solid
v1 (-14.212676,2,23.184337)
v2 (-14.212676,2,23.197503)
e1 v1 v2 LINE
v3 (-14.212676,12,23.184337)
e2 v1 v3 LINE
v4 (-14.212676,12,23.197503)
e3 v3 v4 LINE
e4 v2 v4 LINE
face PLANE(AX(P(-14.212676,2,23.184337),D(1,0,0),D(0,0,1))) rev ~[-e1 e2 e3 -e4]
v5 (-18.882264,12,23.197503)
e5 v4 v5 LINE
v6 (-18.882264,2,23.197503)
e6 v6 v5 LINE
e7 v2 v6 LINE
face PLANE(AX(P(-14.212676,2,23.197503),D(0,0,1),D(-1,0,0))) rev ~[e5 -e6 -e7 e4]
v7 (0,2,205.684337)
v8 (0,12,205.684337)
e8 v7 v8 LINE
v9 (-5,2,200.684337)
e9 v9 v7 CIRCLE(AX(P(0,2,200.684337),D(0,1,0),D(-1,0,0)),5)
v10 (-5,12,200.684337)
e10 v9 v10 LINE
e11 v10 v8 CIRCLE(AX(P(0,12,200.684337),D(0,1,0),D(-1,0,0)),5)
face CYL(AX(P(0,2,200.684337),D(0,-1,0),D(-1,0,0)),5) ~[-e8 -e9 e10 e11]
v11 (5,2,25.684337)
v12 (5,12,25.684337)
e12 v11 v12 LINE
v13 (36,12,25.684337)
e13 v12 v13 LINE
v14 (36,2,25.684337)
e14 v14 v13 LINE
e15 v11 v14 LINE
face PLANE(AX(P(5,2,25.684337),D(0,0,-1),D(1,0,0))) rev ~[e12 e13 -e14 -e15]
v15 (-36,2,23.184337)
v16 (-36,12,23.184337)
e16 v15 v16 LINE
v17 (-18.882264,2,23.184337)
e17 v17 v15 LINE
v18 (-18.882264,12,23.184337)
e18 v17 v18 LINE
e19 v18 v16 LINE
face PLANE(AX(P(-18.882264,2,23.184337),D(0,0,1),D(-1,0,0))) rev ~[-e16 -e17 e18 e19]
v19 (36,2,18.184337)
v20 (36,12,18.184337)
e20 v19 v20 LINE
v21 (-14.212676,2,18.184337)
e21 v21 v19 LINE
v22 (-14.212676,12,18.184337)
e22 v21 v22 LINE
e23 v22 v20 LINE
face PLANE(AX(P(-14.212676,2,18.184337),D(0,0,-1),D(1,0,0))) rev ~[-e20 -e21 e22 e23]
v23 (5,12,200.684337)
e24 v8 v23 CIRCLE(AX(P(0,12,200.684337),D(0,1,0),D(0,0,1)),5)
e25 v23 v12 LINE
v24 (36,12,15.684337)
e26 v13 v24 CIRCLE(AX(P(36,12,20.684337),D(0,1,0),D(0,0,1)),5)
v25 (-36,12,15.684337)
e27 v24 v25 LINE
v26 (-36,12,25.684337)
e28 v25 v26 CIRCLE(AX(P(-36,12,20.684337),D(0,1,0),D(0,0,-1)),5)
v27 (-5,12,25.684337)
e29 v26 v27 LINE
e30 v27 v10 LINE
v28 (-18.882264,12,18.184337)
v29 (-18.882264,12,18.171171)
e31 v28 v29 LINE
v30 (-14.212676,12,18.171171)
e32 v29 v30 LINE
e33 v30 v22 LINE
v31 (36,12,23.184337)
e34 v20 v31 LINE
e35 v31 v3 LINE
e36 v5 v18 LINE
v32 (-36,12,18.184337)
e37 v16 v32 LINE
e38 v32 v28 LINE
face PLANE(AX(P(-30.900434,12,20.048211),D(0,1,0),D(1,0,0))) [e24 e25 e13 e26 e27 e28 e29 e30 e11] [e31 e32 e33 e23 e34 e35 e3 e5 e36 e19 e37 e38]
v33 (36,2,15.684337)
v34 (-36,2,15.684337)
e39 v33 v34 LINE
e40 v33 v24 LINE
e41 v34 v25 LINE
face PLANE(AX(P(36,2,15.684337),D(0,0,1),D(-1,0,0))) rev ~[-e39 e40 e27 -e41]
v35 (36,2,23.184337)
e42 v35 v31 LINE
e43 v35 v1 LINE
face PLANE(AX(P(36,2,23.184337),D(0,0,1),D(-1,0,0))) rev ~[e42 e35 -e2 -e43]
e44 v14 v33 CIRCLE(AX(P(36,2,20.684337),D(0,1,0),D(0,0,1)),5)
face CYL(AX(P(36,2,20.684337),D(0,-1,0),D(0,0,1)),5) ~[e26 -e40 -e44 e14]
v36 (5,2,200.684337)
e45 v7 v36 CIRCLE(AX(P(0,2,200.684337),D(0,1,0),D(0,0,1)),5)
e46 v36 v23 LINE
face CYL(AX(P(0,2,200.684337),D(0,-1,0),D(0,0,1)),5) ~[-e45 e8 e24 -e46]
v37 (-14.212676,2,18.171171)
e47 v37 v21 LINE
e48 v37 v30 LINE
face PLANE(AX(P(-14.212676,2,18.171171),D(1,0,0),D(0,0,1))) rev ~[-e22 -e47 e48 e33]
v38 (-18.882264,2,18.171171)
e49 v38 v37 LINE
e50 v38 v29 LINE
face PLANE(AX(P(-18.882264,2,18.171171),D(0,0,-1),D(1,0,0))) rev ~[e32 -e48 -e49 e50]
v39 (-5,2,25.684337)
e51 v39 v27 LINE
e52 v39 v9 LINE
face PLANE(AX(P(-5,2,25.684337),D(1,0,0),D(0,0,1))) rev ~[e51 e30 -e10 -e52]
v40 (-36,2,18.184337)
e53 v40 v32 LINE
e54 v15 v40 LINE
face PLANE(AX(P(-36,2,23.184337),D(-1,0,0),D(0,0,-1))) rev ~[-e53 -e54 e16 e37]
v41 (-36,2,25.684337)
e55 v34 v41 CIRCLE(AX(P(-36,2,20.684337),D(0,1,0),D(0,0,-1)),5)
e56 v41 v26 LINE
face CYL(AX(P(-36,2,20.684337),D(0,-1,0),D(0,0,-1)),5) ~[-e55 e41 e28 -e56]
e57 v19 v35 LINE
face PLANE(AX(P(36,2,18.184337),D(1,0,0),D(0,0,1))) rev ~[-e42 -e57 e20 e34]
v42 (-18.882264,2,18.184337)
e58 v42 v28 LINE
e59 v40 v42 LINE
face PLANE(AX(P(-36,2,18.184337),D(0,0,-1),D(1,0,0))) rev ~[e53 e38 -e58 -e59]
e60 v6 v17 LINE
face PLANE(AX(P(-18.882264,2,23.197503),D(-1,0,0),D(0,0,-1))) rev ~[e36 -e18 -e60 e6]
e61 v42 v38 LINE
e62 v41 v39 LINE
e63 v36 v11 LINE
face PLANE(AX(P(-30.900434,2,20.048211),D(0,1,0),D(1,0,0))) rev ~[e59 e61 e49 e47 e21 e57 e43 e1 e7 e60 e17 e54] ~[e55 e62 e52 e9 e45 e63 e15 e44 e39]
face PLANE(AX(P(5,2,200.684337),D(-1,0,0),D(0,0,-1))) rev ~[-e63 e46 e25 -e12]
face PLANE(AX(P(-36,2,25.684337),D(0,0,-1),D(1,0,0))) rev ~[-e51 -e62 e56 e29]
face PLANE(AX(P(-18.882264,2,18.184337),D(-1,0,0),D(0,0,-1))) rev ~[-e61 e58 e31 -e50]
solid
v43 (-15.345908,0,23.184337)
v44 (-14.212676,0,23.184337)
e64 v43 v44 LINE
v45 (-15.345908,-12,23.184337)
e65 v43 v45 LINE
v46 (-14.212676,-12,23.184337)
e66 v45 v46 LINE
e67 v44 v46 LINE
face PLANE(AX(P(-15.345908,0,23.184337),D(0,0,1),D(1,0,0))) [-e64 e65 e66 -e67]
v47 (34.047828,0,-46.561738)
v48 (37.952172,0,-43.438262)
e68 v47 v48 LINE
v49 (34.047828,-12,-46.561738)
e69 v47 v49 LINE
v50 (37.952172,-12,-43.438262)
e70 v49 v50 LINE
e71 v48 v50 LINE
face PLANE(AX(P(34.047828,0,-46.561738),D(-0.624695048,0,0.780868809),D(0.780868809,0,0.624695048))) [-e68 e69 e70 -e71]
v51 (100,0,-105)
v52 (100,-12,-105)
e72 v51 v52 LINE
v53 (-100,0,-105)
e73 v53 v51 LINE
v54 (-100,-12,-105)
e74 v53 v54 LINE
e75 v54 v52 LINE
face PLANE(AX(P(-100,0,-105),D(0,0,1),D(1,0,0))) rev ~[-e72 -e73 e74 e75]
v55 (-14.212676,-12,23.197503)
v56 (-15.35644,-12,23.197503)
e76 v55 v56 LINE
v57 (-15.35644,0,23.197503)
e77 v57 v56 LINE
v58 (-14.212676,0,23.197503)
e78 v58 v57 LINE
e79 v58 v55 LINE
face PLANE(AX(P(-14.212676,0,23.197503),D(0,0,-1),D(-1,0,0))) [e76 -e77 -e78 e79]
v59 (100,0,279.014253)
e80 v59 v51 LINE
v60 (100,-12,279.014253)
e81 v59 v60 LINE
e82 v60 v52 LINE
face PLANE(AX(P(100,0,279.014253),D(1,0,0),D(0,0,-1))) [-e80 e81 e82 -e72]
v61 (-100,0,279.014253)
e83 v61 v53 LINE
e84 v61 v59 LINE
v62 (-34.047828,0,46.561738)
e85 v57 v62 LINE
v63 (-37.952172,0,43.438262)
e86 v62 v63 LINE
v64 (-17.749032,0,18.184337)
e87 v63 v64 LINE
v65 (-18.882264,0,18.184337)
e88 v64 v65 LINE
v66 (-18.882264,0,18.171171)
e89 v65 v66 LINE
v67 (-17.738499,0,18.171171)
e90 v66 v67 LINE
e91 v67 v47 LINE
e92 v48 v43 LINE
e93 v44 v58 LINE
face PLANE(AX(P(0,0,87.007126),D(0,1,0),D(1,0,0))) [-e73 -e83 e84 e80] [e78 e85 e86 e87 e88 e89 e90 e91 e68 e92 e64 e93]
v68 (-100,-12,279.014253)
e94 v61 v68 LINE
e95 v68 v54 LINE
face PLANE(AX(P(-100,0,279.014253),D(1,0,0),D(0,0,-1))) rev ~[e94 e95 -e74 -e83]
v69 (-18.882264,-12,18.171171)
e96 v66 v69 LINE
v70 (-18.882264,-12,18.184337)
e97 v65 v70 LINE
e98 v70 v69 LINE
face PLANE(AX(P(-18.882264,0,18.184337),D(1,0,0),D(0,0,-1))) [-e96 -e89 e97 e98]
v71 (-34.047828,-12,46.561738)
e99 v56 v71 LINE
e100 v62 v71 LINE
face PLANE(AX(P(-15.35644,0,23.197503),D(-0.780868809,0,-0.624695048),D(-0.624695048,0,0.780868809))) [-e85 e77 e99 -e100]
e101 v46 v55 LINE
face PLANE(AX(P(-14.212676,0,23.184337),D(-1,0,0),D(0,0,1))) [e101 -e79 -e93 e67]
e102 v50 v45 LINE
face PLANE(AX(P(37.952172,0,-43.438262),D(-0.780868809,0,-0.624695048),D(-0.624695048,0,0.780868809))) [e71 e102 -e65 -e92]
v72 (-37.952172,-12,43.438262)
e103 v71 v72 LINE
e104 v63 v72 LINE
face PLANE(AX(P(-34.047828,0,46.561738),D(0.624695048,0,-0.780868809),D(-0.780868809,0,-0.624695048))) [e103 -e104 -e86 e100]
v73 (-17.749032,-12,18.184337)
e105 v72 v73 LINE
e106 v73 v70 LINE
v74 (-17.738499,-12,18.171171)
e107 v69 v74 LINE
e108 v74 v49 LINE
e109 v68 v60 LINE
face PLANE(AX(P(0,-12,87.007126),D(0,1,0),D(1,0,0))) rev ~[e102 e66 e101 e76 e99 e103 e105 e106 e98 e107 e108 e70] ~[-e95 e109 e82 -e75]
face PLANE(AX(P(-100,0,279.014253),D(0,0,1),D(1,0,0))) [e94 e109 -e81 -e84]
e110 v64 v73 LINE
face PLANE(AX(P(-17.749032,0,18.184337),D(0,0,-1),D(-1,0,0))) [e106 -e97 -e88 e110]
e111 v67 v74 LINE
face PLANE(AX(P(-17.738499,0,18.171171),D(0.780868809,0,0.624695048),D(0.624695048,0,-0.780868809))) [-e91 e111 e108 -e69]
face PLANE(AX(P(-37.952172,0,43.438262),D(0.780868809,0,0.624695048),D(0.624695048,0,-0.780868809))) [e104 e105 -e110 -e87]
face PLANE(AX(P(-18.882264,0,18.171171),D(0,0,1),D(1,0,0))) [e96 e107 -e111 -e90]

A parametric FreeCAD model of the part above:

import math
import FreeCAD as App
import Part
import Sketcher


def add_polygon(sketch, points):
    """Adds a closed chain of lines whose ends are joined by coincident constraints."""
    first, n = sketch.GeometryCount, len(points)
    for a, b in zip(points, points[1:] + points[:1]):
        sketch.addGeometry(Part.LineSegment(App.Vector(*a, 0), App.Vector(*b, 0)), False)
    for i in range(n):
        sketch.addConstraint(Sketcher.Constraint("Coincident", first + i, 2, first + (i + 1) % n, 1))

doc = App.newDocument("Part")
body = doc.addObject("PartDesign::Body", "Body")

sketch1 = doc.addObject("Sketcher::SketchObject", "Sketch")
body.addObject(sketch1)
sketch1.AttachmentSupport = (doc.XZ_Plane, [""])
sketch1.MapMode = "FlatFace"
add_polygon(sketch1, [(-100, -105), (-100, 279.014), (100, 279.014), (100, -105)])
add_polygon(sketch1, [(-34.048, 46.562), (-37.952, 43.438), (-17.749, 18.184), (-18.882, 18.184), (-18.882, 18.171), (-17.738, 18.171), (34.048, -46.562), (37.952, -43.438), (-15.346, 23.184), (-14.213, 23.184), (-14.213, 23.198), (-15.356, 23.198)])
sketch1.addConstraint([
    Sketcher.Constraint("Vertical", 0),
    Sketcher.Constraint("Horizontal", 1),
    Sketcher.Constraint("Vertical", 2),
    Sketcher.Constraint("Horizontal", 3),
    Sketcher.Constraint("Horizontal", 6),
    Sketcher.Constraint("Vertical", 7),
    Sketcher.Constraint("Horizontal", 8),
    Sketcher.Constraint("Horizontal", 12),
    Sketcher.Constraint("Vertical", 13),
    Sketcher.Constraint("Horizontal", 14),
    Sketcher.Constraint("Symmetric", 4, 2, 10, 2, -1, 1),
    Sketcher.Constraint("Symmetric", 9, 2, 15, 2, -1, 1),
    Sketcher.Constraint("Perpendicular", 4, 5),
    Sketcher.Constraint("Parallel", 5, 9),
    Sketcher.Constraint("Perpendicular", 10, 11),
    Sketcher.Constraint("Parallel", 11, 15),
    Sketcher.Constraint("Equal", 6, 12),
    Sketcher.Constraint("Equal", 8, 14),
    Sketcher.Constraint("DistanceX", 1, 1, 1, 2, 200.0),
    Sketcher.Constraint("Distance", 4, 5.0),
    Sketcher.Constraint("DistanceX", 0, 2, -1, 1, 100.0),
    Sketcher.Constraint("DistanceY", 2, 2, -1, 1, 105.0),
    Sketcher.Constraint("DistanceY", 5, 2, 11, 2, 5.0),
    Sketcher.Constraint("DistanceX", 8, 2, -1, 1, 17.738499),
    Sketcher.Constraint("DistanceY", 10, 2, 5, 2, 61.6226),
    Sketcher.Constraint("DistanceY", 11, 2, 15, 2, 23.3774),
    Sketcher.Constraint("Distance", 9, 82.898572),
    Sketcher.Constraint("Distance", 15, 29.920819),
    Sketcher.Constraint("DistanceX", 6, 2, 6, 1, 1.133232),
    Sketcher.Constraint("DistanceY", 0, 1, 0, 2, 384.014253),
])
pad1 = doc.addObject("PartDesign::Pad", "Pad")
body.addObject(pad1)
pad1.Profile = sketch1
pad1.Length = 12
body2 = doc.addObject("PartDesign::Body", "Body001")

sketch2 = doc.addObject("Sketcher::SketchObject", "Sketch001")
body2.addObject(sketch2)
sketch2.AttachmentSupport = (doc.getObject("XZ_Plane001"), [""])
sketch2.MapMode = "FlatFace"
sketch2.AttachmentOffset = App.Placement(App.Vector(0, 0, -2), App.Rotation())
sketch2.addGeometry(Part.LineSegment(App.Vector(-36, 25.684, 0), App.Vector(-5, 25.684, 0)), False)
sketch2.addGeometry(Part.LineSegment(App.Vector(-5, 25.684, 0), App.Vector(-5, 200.684, 0)), False)
sketch2.addGeometry(Part.ArcOfCircle(Part.Circle(App.Vector(0, 200.684, 0), App.Vector(0, 0, 1), 5), math.radians(90), math.radians(180)), False)
sketch2.addGeometry(Part.ArcOfCircle(Part.Circle(App.Vector(0, 200.684, 0), App.Vector(0, 0, 1), 5), math.radians(0), math.radians(90)), False)
sketch2.addGeometry(Part.LineSegment(App.Vector(5, 200.684, 0), App.Vector(5, 25.684, 0)), False)
sketch2.addGeometry(Part.LineSegment(App.Vector(5, 25.684, 0), App.Vector(36, 25.684, 0)), False)
sketch2.addGeometry(Part.ArcOfCircle(Part.Circle(App.Vector(36, 20.684, 0), App.Vector(0, 0, 1), 5), math.radians(-90), math.radians(90)), False)
sketch2.addGeometry(Part.LineSegment(App.Vector(36, 15.684, 0), App.Vector(-36, 15.684, 0)), False)
sketch2.addGeometry(Part.ArcOfCircle(Part.Circle(App.Vector(-36, 20.684, 0), App.Vector(0, 0, 1), 5), math.radians(90), math.radians(270)), False)
add_polygon(sketch2, [(-18.882, 23.198), (-18.882, 23.184), (-36, 23.184), (-36, 18.184), (-18.882, 18.184), (-18.882, 18.171), (-14.213, 18.171), (-14.213, 18.184), (36, 18.184), (36, 23.184), (-14.213, 23.184), (-14.213, 23.198)])
sketch2.addConstraint([
    Sketcher.Constraint("Coincident", 0, 2, 1, 1),
    Sketcher.Constraint("Tangent", 1, 2, 2, 2),
    Sketcher.Constraint("Tangent", 2, 1, 3, 2),
    Sketcher.Constraint("Tangent", 3, 1, 4, 1),
    Sketcher.Constraint("Coincident", 4, 2, 5, 1),
    Sketcher.Constraint("Tangent", 5, 2, 6, 2),
    Sketcher.Constraint("Tangent", 6, 1, 7, 1),
    Sketcher.Constraint("Tangent", 7, 2, 8, 2),
    Sketcher.Constraint("Tangent", 8, 1, 0, 1),
    Sketcher.Constraint("Horizontal", 0),
    Sketcher.Constraint("Vertical", 1),
    Sketcher.Constraint("Vertical", 4),
    Sketcher.Constraint("Horizontal", 5),
    Sketcher.Constraint("Horizontal", 7),
    Sketcher.Constraint("Vertical", 9),
    Sketcher.Constraint("Horizontal", 10),
    Sketcher.Constraint("Vertical", 11),
    Sketcher.Constraint("Horizontal", 12),
    Sketcher.Constraint("Vertical", 13),
    Sketcher.Constraint("Horizontal", 14),
    Sketcher.Constraint("Vertical", 15),
    Sketcher.Constraint("Horizontal", 16),
    Sketcher.Constraint("Vertical", 17),
    Sketcher.Constraint("Horizontal", 18),
    Sketcher.Constraint("Vertical", 19),
    Sketcher.Constraint("Horizontal", 20),
    Sketcher.Constraint("Equal", 2, 3),
    Sketcher.Constraint("Equal", 3, 6),
    Sketcher.Constraint("Equal", 6, 8),
    Sketcher.Constraint("Symmetric", 11, 2, 16, 2, -2),
    Sketcher.Constraint("PointOnObject", 2, 3, -2),
    Sketcher.Constraint("PointOnObject", 2, 1, -2),
    Sketcher.Constraint("Horizontal", 10, 2, 17, 2),
    Sketcher.Constraint("Vertical", 8, 1, 10, 2),
    Sketcher.Constraint("Vertical", 9, 2, 12, 2),
    Sketcher.Constraint("Vertical", 6, 1, 16, 2),
    Sketcher.Constraint("Vertical", 15, 2, 18, 2),
    Sketcher.Constraint("Equal", 9, 13),
    Sketcher.Constraint("Radius", 2, 5.0),
    Sketcher.Constraint("DistanceX", 0, 1, 0, 2, 31.0),
    Sketcher.Constraint("DistanceY", 1, 1, 1, 2, 175.0),
    Sketcher.Constraint("DistanceY", 11, 2, 11, 1, 5.0),
    Sketcher.Constraint("DistanceY", 9, 2, 0, 2, 2.5),
    Sketcher.Constraint("DistanceX", 14, 1, 14, 2, 4.669588),
    Sketcher.Constraint("DistanceX", 10, 2, 10, 1, 17.117736),
    Sketcher.Constraint("DistanceY", 9, 2, 9, 1, 0.013166),
    Sketcher.Constraint("DistanceY", -1, 1, 13, 2, 18.171171),
])
pad2 = doc.addObject("PartDesign::Pad", "Pad001")
body2.addObject(pad2)
pad2.Profile = sketch2
pad2.Length = 10
pad2.Reversed = True

doc.recompute()
